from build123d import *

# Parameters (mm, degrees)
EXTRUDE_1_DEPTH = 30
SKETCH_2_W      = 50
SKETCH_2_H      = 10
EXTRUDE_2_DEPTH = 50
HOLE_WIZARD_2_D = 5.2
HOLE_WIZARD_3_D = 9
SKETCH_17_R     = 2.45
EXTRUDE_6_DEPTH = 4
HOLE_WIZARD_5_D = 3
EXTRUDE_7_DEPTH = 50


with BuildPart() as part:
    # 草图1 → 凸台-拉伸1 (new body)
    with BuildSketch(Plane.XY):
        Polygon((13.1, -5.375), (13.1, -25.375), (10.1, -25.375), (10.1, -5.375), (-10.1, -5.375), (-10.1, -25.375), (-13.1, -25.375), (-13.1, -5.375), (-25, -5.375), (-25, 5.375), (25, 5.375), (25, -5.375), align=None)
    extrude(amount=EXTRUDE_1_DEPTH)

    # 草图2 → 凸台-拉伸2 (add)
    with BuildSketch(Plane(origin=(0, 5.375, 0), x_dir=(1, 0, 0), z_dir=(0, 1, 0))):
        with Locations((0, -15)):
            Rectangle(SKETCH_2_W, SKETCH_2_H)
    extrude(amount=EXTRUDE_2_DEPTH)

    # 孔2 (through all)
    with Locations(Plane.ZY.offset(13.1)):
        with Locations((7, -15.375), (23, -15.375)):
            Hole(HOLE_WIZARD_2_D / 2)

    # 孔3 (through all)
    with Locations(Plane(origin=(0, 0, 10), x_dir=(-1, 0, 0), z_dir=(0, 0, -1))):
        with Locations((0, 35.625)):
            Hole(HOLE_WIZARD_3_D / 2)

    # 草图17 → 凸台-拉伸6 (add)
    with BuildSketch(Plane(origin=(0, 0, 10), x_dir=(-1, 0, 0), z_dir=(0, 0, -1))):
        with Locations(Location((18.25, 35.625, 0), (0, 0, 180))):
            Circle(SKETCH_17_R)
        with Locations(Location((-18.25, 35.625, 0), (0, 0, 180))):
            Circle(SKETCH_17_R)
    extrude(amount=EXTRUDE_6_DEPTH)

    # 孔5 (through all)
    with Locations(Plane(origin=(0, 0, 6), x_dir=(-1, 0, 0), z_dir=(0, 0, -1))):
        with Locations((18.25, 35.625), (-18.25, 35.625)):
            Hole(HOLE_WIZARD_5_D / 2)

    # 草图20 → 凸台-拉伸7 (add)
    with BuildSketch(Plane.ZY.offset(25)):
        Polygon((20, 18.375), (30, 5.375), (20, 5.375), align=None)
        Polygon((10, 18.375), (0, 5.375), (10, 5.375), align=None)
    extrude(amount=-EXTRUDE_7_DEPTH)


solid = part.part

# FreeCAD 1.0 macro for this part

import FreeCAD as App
import Part
import Sketcher
from FreeCAD import Vector
Q = App.Units.Quantity

doc = App.newDocument("Part")
body = doc.addObject("PartDesign::Body", "Body")

# Sketch on XY plane
sketch1 = doc.addObject("Sketcher::SketchObject", "Sketch")
body.addObject(sketch1)
sketch1.AttachmentSupport = (doc.XY_Plane, [""])
sketch1.MapMode = "FlatFace"
sketch1.addGeometry(Part.LineSegment(Vector(13.1, -25.4, 0), Vector(13.1, -5.4, 0)), False)
sketch1.addGeometry(Part.LineSegment(Vector(13.1, -5.4, 0), Vector(25, -5.4, 0)), False)
sketch1.addGeometry(Part.LineSegment(Vector(25, -5.4, 0), Vector(25, 5.4, 0)), False)
sketch1.addGeometry(Part.LineSegment(Vector(25, 5.4, 0), Vector(-25, 5.4, 0)), False)
sketch1.addGeometry(Part.LineSegment(Vector(-25, 5.4, 0), Vector(-25, -5.4, 0)), False)
sketch1.addGeometry(Part.LineSegment(Vector(-25, -5.4, 0), Vector(-13.1, -5.4, 0)), False)
sketch1.addGeometry(Part.LineSegment(Vector(-13.1, -5.4, 0), Vector(-13.1, -25.4, 0)), False)
sketch1.addGeometry(Part.LineSegment(Vector(-13.1, -25.4, 0), Vector(-10.1, -25.4, 0)), False)
sketch1.addGeometry(Part.LineSegment(Vector(-10.1, -25.4, 0), Vector(-10.1, -5.4, 0)), False)
sketch1.addGeometry(Part.LineSegment(Vector(-10.1, -5.4, 0), Vector(10.1, -5.4, 0)), False)
sketch1.addGeometry(Part.LineSegment(Vector(10.1, -5.4, 0), Vector(10.1, -25.4, 0)), False)
sketch1.addGeometry(Part.LineSegment(Vector(10.1, -25.4, 0), Vector(13.1, -25.4, 0)), False)
sketch1.addConstraint(Sketcher.Constraint("Coincident", 0, 2, 1, 1))
sketch1.addConstraint(Sketcher.Constraint("Coincident", 1, 2, 2, 1))
sketch1.addConstraint(Sketcher.Constraint("Coincident", 2, 2, 3, 1))
sketch1.addConstraint(Sketcher.Constraint("Coincident", 3, 2, 4, 1))
sketch1.addConstraint(Sketcher.Constraint("Coincident", 4, 2, 5, 1))
sketch1.addConstraint(Sketcher.Constraint("Coincident", 5, 2, 6, 1))
sketch1.addConstraint(Sketcher.Constraint("Coincident", 6, 2, 7, 1))
sketch1.addConstraint(Sketcher.Constraint("Coincident", 7, 2, 8, 1))
sketch1.addConstraint(Sketcher.Constraint("Coincident", 8, 2, 9, 1))
sketch1.addConstraint(Sketcher.Constraint("Coincident", 9, 2, 10, 1))
sketch1.addConstraint(Sketcher.Constraint("Coincident", 10, 2, 11, 1))
sketch1.addConstraint(Sketcher.Constraint("Coincident", 11, 2, 0, 1))
sketch1.addConstraint(Sketcher.Constraint("Vertical", 0))
sketch1.addConstraint(Sketcher.Constraint("Horizontal", 1))
sketch1.addConstraint(Sketcher.Constraint("Vertical", 2))
sketch1.addConstraint(Sketcher.Constraint("Horizontal", 3))
sketch1.addConstraint(Sketcher.Constraint("Vertical", 4))
sketch1.addConstraint(Sketcher.Constraint("Horizontal", 5))
sketch1.addConstraint(Sketcher.Constraint("Vertical", 6))
sketch1.addConstraint(Sketcher.Constraint("Horizontal", 7))
sketch1.addConstraint(Sketcher.Constraint("Vertical", 8))
sketch1.addConstraint(Sketcher.Constraint("Horizontal", 9))
sketch1.addConstraint(Sketcher.Constraint("Vertical", 10))
sketch1.addConstraint(Sketcher.Constraint("Horizontal", 11))
sketch1.addConstraint(Sketcher.Constraint("Symmetric", 1, 2, 3, 2, -1, 1))
sketch1.addConstraint(Sketcher.Constraint("Symmetric", 0, 2, 5, 2, -2))
sketch1.addConstraint(Sketcher.Constraint("Symmetric", 7, 2, 10, 2, -2))
sketch1.addConstraint(Sketcher.Constraint("Horizontal", 5, 2, 8, 2))
sketch1.addConstraint(Sketcher.Constraint("DistanceX", 3, 2, 3, 1, Q("50 mm")))
sketch1.addConstraint(Sketcher.Constraint("DistanceX", 7, 1, 7, 2, Q("3 mm")))
sketch1.addConstraint(Sketcher.Constraint("DistanceY", 0, 1, 0, 2, Q("20 mm")))
sketch1.addConstraint(Sketcher.Constraint("DistanceX", 1, 1, 1, 2, Q("11.9 mm")))
sketch1.addConstraint(Sketcher.Constraint("DistanceY", 2, 1, 2, 2, Q("10.75 mm")))
pad1 = doc.addObject("PartDesign::Pad", "Pad")
body.addObject(pad1)
pad1.Profile = sketch1
pad1.Length = 30

# Sketch on XZ plane
sketch2 = doc.addObject("Sketcher::SketchObject", "Sketch001")
body.addObject(sketch2)
sketch2.AttachmentSupport = (doc.XZ_Plane, [""])
sketch2.MapMode = "FlatFace"
sketch2.AttachmentOffset = App.Placement(Vector(0, 0, -5.375), App.Rotation())
sketch2.addGeometry(Part.LineSegment(Vector(-25, 10, 0), Vector(-25, 20, 0)), False)
sketch2.addGeometry(Part.LineSegment(Vector(-25, 20, 0), Vector(25, 20, 0)), False)
sketch2.addGeometry(Part.LineSegment(Vector(25, 20, 0), Vector(25, 10, 0)), False)
sketch2.addGeometry(Part.LineSegment(Vector(25, 10, 0), Vector(-25, 10, 0)), False)
sketch2.addConstraint(Sketcher.Constraint("Coincident", 0, 2, 1, 1))
sketch2.addConstraint(Sketcher.Constraint("Coincident", 1, 2, 2, 1))
sketch2.addConstraint(Sketcher.Constraint("Coincident", 2, 2, 3, 1))
sketch2.addConstraint(Sketcher.Constraint("Coincident", 3, 2, 0, 1))
sketch2.addConstraint(Sketcher.Constraint("Vertical", 0))
sketch2.addConstraint(Sketcher.Constraint("Horizontal", 1))
sketch2.addConstraint(Sketcher.Constraint("Vertical", 2))
sketch2.addConstraint(Sketcher.Constraint("Horizontal", 3))
sketch2.addConstraint(Sketcher.Constraint("DistanceX", 1, 1, 1, 2, Q("50 mm")))
sketch2.addConstraint(Sketcher.Constraint("DistanceY", 0, 1, 0, 2, Q("10 mm")))
sketch2.addConstraint(Sketcher.Constraint("DistanceX", 0, 2, -1, 1, Q("25 mm")))
sketch2.addConstraint(Sketcher.Constraint("DistanceY", -1, 1, 0, 2, Q("20 mm")))
pad2 = doc.addObject("PartDesign::Pad", "Pad001")
body.addObject(pad2)
pad2.Profile = sketch2
pad2.Length = 50
pad2.Reversed = True

# Sketch on YZ plane
sketch3 = doc.addObject("Sketcher::SketchObject", "Sketch002")
body.addObject(sketch3)
sketch3.AttachmentSupport = (doc.YZ_Plane, [""])
sketch3.MapMode = "FlatFace"
sketch3.AttachmentOffset = App.Placement(Vector(0, 0, -13.1), App.Rotation())
sketch3.addGeometry(Part.Circle(Vector(-15.4, 7, 0), Vector(0, 0, 1), 2.6), False)
sketch3.addGeometry(Part.Circle(Vector(-15.4, 23, 0), Vector(0, 0, 1), 2.6), False)
sketch3.addConstraint(Sketcher.Constraint("Equal", 0, 1))
sketch3.addConstraint(Sketcher.Constraint("Vertical", 0, 3, 1, 3))
sketch3.addConstraint(Sketcher.Constraint("Diameter", 0, Q("5.2 mm")))
sketch3.addConstraint(Sketcher.Constraint("DistanceY", -1, 1, 0, 3, Q("7 mm")))
sketch3.addConstraint(Sketcher.Constraint("DistanceY", -1, 1, 1, 3, Q("23 mm")))
sketch3.addConstraint(Sketcher.Constraint("DistanceX", 0, 3, -1, 1, Q("15.375 mm")))
doc.recompute()
hole = doc.addObject("PartDesign::Hole", "Hole")
body.addObject(hole)
hole.Profile = sketch3
hole.ThreadType = "None"
hole.Diameter = 5.2
hole.DepthType = "ThroughAll"
hole.Reversed = True

# Sketch on XY plane
sketch4 = doc.addObject("Sketcher::SketchObject", "Sketch003")
body.addObject(sketch4)
sketch4.AttachmentSupport = (doc.XY_Plane, [""])
sketch4.MapMode = "FlatFace"
sketch4.AttachmentOffset = App.Placement(Vector(0, 0, 10), App.Rotation())
sketch4.addGeometry(Part.Circle(Vector(0, 35.6, 0), Vector(0, 0, 1), 4.5), False)
sketch4.addConstraint(Sketcher.Constraint("PointOnObject", 0, 3, -2))
sketch4.addConstraint(Sketcher.Constraint("Diameter", 0, Q("9 mm")))
sketch4.addConstraint(Sketcher.Constraint("DistanceY", -1, 1, 0, 3, Q("35.625 mm")))
doc.recompute()
hole2 = doc.addObject("PartDesign::Hole", "Hole001")
body.addObject(hole2)
hole2.Profile = sketch4
hole2.ThreadType = "None"
hole2.Diameter = 9
hole2.DepthType = "ThroughAll"
hole2.Reversed = True

# Sketch on XY plane
sketch5 = doc.addObject("Sketcher::SketchObject", "Sketch004")
body.addObject(sketch5)
sketch5.AttachmentSupport = (doc.XY_Plane, [""])
sketch5.MapMode = "FlatFace"
sketch5.AttachmentOffset = App.Placement(Vector(0, 0, 10), App.Rotation())
sketch5.addGeometry(Part.Circle(Vector(-18.2, 35.6, 0), Vector(0, 0, 1), 2.5), False)
sketch5.addGeometry(Part.Circle(Vector(18.2, 35.6, 0), Vector(0, 0, 1), 2.5), False)
sketch5.addConstraint(Sketcher.Constraint("Equal", 0, 1))
sketch5.addConstraint(Sketcher.Constraint("Symmetric", 0, 3, 1, 3, -2))
sketch5.addConstraint(Sketcher.Constraint("Diameter", 0, Q("4.9 mm")))
sketch5.addConstraint(Sketcher.Constraint("DistanceX", 0, 3, 1, 3, Q("36.5 mm")))
sketch5.addConstraint(Sketcher.Constraint("DistanceY", -1, 1, 0, 3, Q("35.625 mm")))
pad3 = doc.addObject("PartDesign::Pad", "Pad002")
body.addObject(pad3)
pad3.Profile = sketch5
pad3.Length = 4
pad3.Reversed = True

# Sketch on XY plane
sketch6 = doc.addObject("Sketcher::SketchObject", "Sketch005")
body.addObject(sketch6)
sketch6.AttachmentSupport = (doc.XY_Plane, [""])
sketch6.MapMode = "FlatFace"
sketch6.AttachmentOffset = App.Placement(Vector(0, 0, 6), App.Rotation())
sketch6.addGeometry(Part.Circle(Vector(-18.2, 35.6, 0), Vector(0, 0, 1), 1.5), False)
sketch6.addGeometry(Part.Circle(Vector(18.2, 35.6, 0), Vector(0, 0, 1), 1.5), False)
sketch6.addConstraint(Sketcher.Constraint("Equal", 0, 1))
sketch6.addConstraint(Sketcher.Constraint("Symmetric", 0, 3, 1, 3, -2))
sketch6.addConstraint(Sketcher.Constraint("Diameter", 0, Q("3 mm")))
sketch6.addConstraint(Sketcher.Constraint("DistanceX", 0, 3, 1, 3, Q("36.5 mm")))
sketch6.addConstraint(Sketcher.Constraint("DistanceY", -1, 1, 0, 3, Q("35.625 mm")))
doc.recompute()
hole3 = doc.addObject("PartDesign::Hole", "Hole002")
body.addObject(hole3)
hole3.Profile = sketch6
hole3.ThreadType = "None"
hole3.Diameter = 3
hole3.DepthType = "ThroughAll"
hole3.Reversed = True

# Sketch on YZ plane
sketch7 = doc.addObject("Sketcher::SketchObject", "Sketch006")
body.addObject(sketch7)
sketch7.AttachmentSupport = (doc.YZ_Plane, [""])
sketch7.MapMode = "FlatFace"
sketch7.AttachmentOffset = App.Placement(Vector(0, 0, -25), App.Rotation())
sketch7.addGeometry(Part.LineSegment(Vector(5, 30, 0), Vector(18, 20, 0)), False)
sketch7.addGeometry(Part.LineSegment(Vector(18, 20, 0), Vector(5, 20, 0)), False)
sketch7.addGeometry(Part.LineSegment(Vector(5, 20, 0), Vector(5, 30, 0)), False)
sketch7.addGeometry(Part.LineSegment(Vector(18, 10, 0), Vector(5, 0, 0)), False)
sketch7.addGeometry(Part.LineSegment(Vector(5, 0, 0), Vector(5, 10, 0)), False)
sketch7.addGeometry(Part.LineSegment(Vector(5, 10, 0), Vector(18, 10, 0)), False)
sketch7.addConstraint(Sketcher.Constraint("Coincident", 0, 2, 1, 1))
sketch7.addConstraint(Sketcher.Constraint("Coincident", 1, 2, 2, 1))
sketch7.addConstraint(Sketcher.Constraint("Coincident", 2, 2, 0, 1))
sketch7.addConstraint(Sketcher.Constraint("Coincident", 3, 2, 4, 1))
sketch7.addConstraint(Sketcher.Constraint("Coincident", 4, 2, 5, 1))
sketch7.addConstraint(Sketcher.Constraint("Coincident", 5, 2, 3, 1))
sketch7.addConstraint(Sketcher.Constraint("Horizontal", 1))
sketch7.addConstraint(Sketcher.Constraint("Vertical", 2))
sketch7.addConstraint(Sketcher.Constraint("Vertical", 4))
sketch7.addConstraint(Sketcher.Constraint("Horizontal", 5))
sketch7.addConstraint(Sketcher.Constraint("PointOnObject", 3, 2, -1))
sketch7.addConstraint(Sketcher.Constraint("Vertical", 2, 2, 3, 2))
sketch7.addConstraint(Sketcher.Constraint("Vertical", 0, 2, 5, 2))
sketch7.addConstraint(Sketcher.Constraint("Equal", 2, 4))
sketch7.addConstraint(Sketcher.Constraint("DistanceX", 1, 2, 1, 1, Q("13 mm")))
sketch7.addConstraint(Sketcher.Constraint("DistanceY", 2, 1, 2, 2, Q("10 mm")))
sketch7.addConstraint(Sketcher.Constraint("DistanceY", -1, 1, 0, 2, Q("20 mm")))
sketch7.addConstraint(Sketcher.Constraint("DistanceX", -1, 1, 0, 2, Q("18.375 mm")))
pad4 = doc.addObject("PartDesign::Pad", "Pad003")
body.addObject(pad4)
pad4.Profile = sketch7
pad4.Length = 50

doc.recompute()
